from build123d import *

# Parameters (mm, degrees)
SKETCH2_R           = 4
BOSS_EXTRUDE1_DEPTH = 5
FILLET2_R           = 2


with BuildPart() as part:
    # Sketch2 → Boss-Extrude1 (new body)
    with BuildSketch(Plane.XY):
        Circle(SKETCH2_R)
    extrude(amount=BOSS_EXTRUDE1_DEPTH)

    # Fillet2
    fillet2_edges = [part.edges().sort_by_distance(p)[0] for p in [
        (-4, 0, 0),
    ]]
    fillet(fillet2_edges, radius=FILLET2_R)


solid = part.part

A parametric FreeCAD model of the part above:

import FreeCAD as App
import Part
import Sketcher


def edges_at(feature, points):
    """Names of the edges that pass closest to the given points."""
    edges = feature.Shape.Edges
    near = lambda p: min(range(len(edges)), key=lambda i: edges[i].distToShape(Part.Vertex(*p))[0])
    return sorted({f"Edge{near(p) + 1}" for p in points})

doc = App.newDocument("Part")
body = doc.addObject("PartDesign::Body", "Body")

# Sketch on XY plane
sketch1 = body.newObject("Sketcher::SketchObject", "Sketch")
sketch1.AttachmentSupport = (doc.getObject("XY_Plane"), [""])
sketch1.MapMode = "FlatFace"
sketch1.addGeometry(Part.Circle(App.Vector(0, 0, 0), App.Vector(0, 0, 1), 4), False)
sketch1.addConstraint(Sketcher.Constraint("Coincident", 0, 3, -1, 1))
sketch1.addConstraint(Sketcher.Constraint("Diameter", 0, 8.0))
pad1 = body.newObject("PartDesign::Pad", "Pad")
pad1.Profile = sketch1
pad1.Length = 5
doc.recompute()

fillet = body.newObject("PartDesign::Fillet", "Fillet")
fillet.Base = (pad1, edges_at(pad1, [(-4, 0, 0)]))
fillet.Radius = 2

doc.recompute()
